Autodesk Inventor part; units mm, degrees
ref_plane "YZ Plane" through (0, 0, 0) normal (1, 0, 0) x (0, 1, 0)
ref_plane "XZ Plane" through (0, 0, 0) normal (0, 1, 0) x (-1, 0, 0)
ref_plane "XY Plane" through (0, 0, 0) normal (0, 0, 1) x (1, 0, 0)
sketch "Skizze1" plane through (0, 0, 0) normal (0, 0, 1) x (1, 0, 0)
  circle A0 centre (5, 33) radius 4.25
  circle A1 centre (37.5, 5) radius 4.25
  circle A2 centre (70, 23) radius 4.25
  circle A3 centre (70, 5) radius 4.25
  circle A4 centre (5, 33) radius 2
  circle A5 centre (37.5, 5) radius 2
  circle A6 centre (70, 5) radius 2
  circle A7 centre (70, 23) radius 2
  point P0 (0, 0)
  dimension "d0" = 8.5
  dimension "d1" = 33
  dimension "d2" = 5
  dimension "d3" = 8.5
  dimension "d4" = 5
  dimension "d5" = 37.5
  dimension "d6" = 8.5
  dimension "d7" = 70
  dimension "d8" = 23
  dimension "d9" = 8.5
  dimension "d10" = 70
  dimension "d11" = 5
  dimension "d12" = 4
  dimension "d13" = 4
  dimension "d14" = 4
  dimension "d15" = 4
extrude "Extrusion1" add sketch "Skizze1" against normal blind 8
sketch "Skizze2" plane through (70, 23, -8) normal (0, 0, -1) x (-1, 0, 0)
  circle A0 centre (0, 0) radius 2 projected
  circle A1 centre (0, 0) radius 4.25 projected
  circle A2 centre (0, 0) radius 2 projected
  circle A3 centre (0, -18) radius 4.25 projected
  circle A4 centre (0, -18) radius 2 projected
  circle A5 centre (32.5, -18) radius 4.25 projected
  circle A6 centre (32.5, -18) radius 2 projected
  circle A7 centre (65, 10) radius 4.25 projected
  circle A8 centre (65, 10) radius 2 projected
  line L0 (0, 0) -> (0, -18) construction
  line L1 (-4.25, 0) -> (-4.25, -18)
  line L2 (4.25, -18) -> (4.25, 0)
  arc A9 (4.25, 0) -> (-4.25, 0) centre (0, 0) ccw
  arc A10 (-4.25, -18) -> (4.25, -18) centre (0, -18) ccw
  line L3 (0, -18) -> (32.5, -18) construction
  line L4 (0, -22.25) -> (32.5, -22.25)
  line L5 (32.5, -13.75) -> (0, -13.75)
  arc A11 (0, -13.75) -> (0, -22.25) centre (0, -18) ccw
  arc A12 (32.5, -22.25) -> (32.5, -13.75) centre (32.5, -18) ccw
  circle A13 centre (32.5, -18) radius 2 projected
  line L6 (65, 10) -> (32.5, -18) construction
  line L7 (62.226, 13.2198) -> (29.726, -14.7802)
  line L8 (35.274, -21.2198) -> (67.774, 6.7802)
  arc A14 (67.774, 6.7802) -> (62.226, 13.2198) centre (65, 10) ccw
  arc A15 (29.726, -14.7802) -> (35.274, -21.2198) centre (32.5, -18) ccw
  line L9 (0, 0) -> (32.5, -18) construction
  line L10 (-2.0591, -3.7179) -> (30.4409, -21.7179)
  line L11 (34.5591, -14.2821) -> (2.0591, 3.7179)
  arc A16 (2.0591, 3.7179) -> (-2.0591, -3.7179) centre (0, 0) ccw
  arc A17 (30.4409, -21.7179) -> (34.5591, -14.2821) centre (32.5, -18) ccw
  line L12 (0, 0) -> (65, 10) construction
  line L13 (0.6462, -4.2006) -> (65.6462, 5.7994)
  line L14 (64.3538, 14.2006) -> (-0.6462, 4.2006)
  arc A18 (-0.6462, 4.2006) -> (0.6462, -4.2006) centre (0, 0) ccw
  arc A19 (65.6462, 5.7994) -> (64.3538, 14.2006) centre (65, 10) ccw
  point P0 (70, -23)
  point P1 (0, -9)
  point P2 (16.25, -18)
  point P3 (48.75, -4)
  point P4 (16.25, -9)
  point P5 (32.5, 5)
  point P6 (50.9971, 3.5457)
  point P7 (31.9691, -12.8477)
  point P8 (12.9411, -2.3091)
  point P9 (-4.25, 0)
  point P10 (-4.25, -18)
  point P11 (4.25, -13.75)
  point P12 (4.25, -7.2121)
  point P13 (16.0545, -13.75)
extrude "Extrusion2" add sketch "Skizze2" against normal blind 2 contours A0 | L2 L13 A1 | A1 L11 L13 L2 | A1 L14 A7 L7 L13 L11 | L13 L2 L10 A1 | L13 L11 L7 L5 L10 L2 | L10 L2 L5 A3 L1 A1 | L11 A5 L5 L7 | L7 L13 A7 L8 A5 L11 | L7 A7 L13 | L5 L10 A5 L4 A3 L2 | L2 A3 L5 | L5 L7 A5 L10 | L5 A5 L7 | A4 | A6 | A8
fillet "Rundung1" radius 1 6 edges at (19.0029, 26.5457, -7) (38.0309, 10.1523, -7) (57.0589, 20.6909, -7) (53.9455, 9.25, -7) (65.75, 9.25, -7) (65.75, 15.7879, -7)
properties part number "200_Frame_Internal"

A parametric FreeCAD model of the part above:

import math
import FreeCAD as App
import Part
import Sketcher

V = App.Vector
Q = App.Units.Quantity


def edges_at(feature, points):
    """Names of the edges that pass closest to the given points."""
    edges = feature.Shape.Edges
    near = lambda p: min(range(len(edges)), key=lambda i: edges[i].distToShape(Part.Vertex(*p))[0])
    return sorted({f"Edge{near(p) + 1}" for p in points})

doc = App.newDocument("Part")
body = doc.addObject("PartDesign::Body", "Body")
body.AllowCompound = True

# Sketch on XY plane
sketch1 = body.newObject("Sketcher::SketchObject", "Sketch")
sketch1.AttachmentSupport = (doc.getObject("XY_Plane"), [""])
sketch1.MapMode = "FlatFace"
sketch1.addGeometry([
    Part.Circle(V(5, 33, 0), V(0, 0, 1), 4.2),  # 0
    Part.Circle(V(5, 33, 0), V(0, 0, 1), 2),  # 1
    Part.Circle(V(37.5, 5, 0), V(0, 0, 1), 4.2),  # 2
    Part.Circle(V(37.5, 5, 0), V(0, 0, 1), 2),  # 3
    Part.Circle(V(70, 23, 0), V(0, 0, 1), 4.2),  # 4
    Part.Circle(V(70, 23, 0), V(0, 0, 1), 2),  # 5
    Part.Circle(V(70, 5, 0), V(0, 0, 1), 4.2),  # 6
    Part.Circle(V(70, 5, 0), V(0, 0, 1), 2),  # 7
], False)
sketch1.addConstraint([
    Sketcher.Constraint("Coincident", 1, 3, 0, 3),
    Sketcher.Constraint("Coincident", 3, 3, 2, 3),
    Sketcher.Constraint("Coincident", 5, 3, 4, 3),
    Sketcher.Constraint("Coincident", 7, 3, 6, 3),
    Sketcher.Constraint("Equal", 0, 2),
    Sketcher.Constraint("Equal", 1, 3),
    Sketcher.Constraint("Equal", 2, 4),
    Sketcher.Constraint("Equal", 3, 5),
    Sketcher.Constraint("Equal", 4, 6),
    Sketcher.Constraint("Equal", 5, 7),
    Sketcher.Constraint("Horizontal", 3, 3, 6, 3),
    Sketcher.Constraint("Vertical", 5, 3, 6, 3),
    Sketcher.Constraint("Diameter", 1, 4.0),
    Sketcher.Constraint("Diameter", 0, 8.5),
    Sketcher.Constraint("DistanceX", -1, 1, 0, 3, 5.0),
    Sketcher.Constraint("DistanceY", -1, 1, 0, 3, 33.0),
    Sketcher.Constraint("DistanceY", -1, 1, 2, 3, 5.0),
    Sketcher.Constraint("DistanceX", -1, 1, 4, 3, 70.0),
    Sketcher.Constraint("DistanceY", -1, 1, 4, 3, 23.0),
    Sketcher.Constraint("DistanceX", -1, 1, 2, 3, 37.5),
])
pad1 = body.newObject("PartDesign::Pad", "Pad")
pad1.Profile = sketch1
pad1.Length = 8
pad1.Reversed = True

# Sketch on XY plane
sketch2 = body.newObject("Sketcher::SketchObject", "Sketch001")
sketch2.AttachmentSupport = (doc.getObject("XY_Plane"), [""])
sketch2.MapMode = "FlatFace"
sketch2.AttachmentOffset = App.Placement(V(0, 0, -8), App.Rotation())
sketch2.addGeometry([
    Part.Circle(V(70, 23, 0), V(0, 0, 1), 2),  # 0
    Part.LineSegment(V(74.2, 23, 0), V(74.2, 5, 0)),  # 1
    Part.ArcOfCircle(Part.Circle(V(70, 5, 0), V(0, 0, 1), 4.2), math.radians(0), math.radians(270)),  # 2
    Part.LineSegment(V(70, 0.8, 0), V(37.5, 0.8, 0)),  # 3
    Part.ArcOfCircle(Part.Circle(V(37.5, 5, 0), V(0, 0, 1), 4.2), math.radians(-90), math.radians(229)),  # 4
    Part.LineSegment(V(34.7, 1.8, 0), V(2.2, 29.8, 0)),  # 5
    Part.ArcOfCircle(Part.Circle(V(5, 33, 0), V(0, 0, 1), 4.2), math.radians(-131), math.radians(81)),  # 6
    Part.LineSegment(V(5.6, 37.2, 0), V(70.6, 27.2, 0)),  # 7
    Part.ArcOfCircle(Part.Circle(V(70, 23, 0), V(0, 0, 1), 4.2), math.radians(81), math.radians(360)),  # 8
    Part.LineSegment(V(57.1, 20.7, 0), V(19, 26.5, 0)),  # 9
    Part.LineSegment(V(19, 26.5, 0), V(38, 10.2, 0)),  # 10
    Part.LineSegment(V(38, 10.2, 0), V(57.1, 20.7, 0)),  # 11
    Part.LineSegment(V(65.8, 15.8, 0), V(53.9, 9.2, 0)),  # 12
    Part.LineSegment(V(53.9, 9.2, 0), V(65.8, 9.2, 0)),  # 13
    Part.LineSegment(V(65.8, 9.2, 0), V(65.8, 15.8, 0)),  # 14
    Part.Circle(V(70, 5, 0), V(0, 0, 1), 2),  # 15
    Part.Circle(V(37.5, 5, 0), V(0, 0, 1), 2),  # 16
    Part.Circle(V(5, 33, 0), V(0, 0, 1), 2),  # 17
], False)
sketch2.addConstraint([
    Sketcher.Constraint("Tangent", 1, 2, 2, 1),
    Sketcher.Constraint("Tangent", 2, 2, 3, 1),
    Sketcher.Constraint("Tangent", 3, 2, 4, 1),
    Sketcher.Constraint("Tangent", 4, 2, 5, 1),
    Sketcher.Constraint("Tangent", 5, 2, 6, 1),
    Sketcher.Constraint("Tangent", 6, 2, 7, 1),
    Sketcher.Constraint("Tangent", 7, 2, 8, 1),
    Sketcher.Constraint("Tangent", 8, 2, 1, 1),
    Sketcher.Constraint("Coincident", 9, 2, 10, 1),
    Sketcher.Constraint("Coincident", 10, 2, 11, 1),
    Sketcher.Constraint("Coincident", 11, 2, 9, 1),
    Sketcher.Constraint("Coincident", 12, 2, 13, 1),
    Sketcher.Constraint("Coincident", 13, 2, 14, 1),
    Sketcher.Constraint("Coincident", 14, 2, 12, 1),
    Sketcher.Constraint("Vertical", 1),
    Sketcher.Constraint("Horizontal", 3),
    Sketcher.Constraint("Horizontal", 13),
    Sketcher.Constraint("Vertical", 14),
    Sketcher.Constraint("Coincident", 8, 3, 0, 3),
    Sketcher.Constraint("Coincident", 15, 3, 2, 3),
    Sketcher.Constraint("Coincident", 16, 3, 4, 3),
    Sketcher.Constraint("Coincident", 17, 3, 6, 3),
    Sketcher.Constraint("Equal", 2, 4),
    Sketcher.Constraint("Equal", 4, 6),
    Sketcher.Constraint("Equal", 6, 8),
    Sketcher.Constraint("Equal", 0, 15),
    Sketcher.Constraint("Equal", 15, 16),
    Sketcher.Constraint("Equal", 16, 17),
    Sketcher.Constraint("Parallel", 7, 9),
    Sketcher.Constraint("Parallel", 5, 10),
    Sketcher.Constraint("Parallel", 11, 12),
    Sketcher.Constraint("Diameter", 0, 4.0),
    Sketcher.Constraint("DistanceY", 1, 2, 1, 1, 18.0),
    Sketcher.Constraint("Radius", 2, 4.25),
    Sketcher.Constraint("DistanceX", 3, 2, 3, 1, 32.5),
    Sketcher.Constraint("DistanceX", -1, 1, 0, 3, 70.0),
    Sketcher.Constraint("DistanceY", -1, 1, 0, 3, 23.0),
    Sketcher.Constraint("DistanceX", -1, 1, 6, 3, 5.0),
    Sketcher.Constraint("DistanceY", -1, 1, 6, 3, 33.0),
    Sketcher.Constraint("Angle", 11, Q("28.9797 deg")),
    Sketcher.Constraint("DistanceX", 13, 2, 1, 2, 8.5),
    Sketcher.Constraint("DistanceY", 2, 2, 13, 2, 8.5),
    Sketcher.Constraint("Distance", 12, 13.494),
    Sketcher.Constraint("DistanceY", -1, 1, 11, 2, 20.691),
    Sketcher.Constraint("DistanceY", 9, 2, 6, 2, 10.655),
    Sketcher.Constraint("DistanceX", 4, 2, 10, 2, 3.305),
])
pad2 = body.newObject("PartDesign::Pad", "Pad001")
pad2.Profile = sketch2
pad2.Length = 2
doc.recompute()

fillet = body.newObject("PartDesign::Fillet", "Fillet")
fillet.Base = (pad2, edges_at(pad2, [
    (19.003, 26.546, -7),
    (38.031, 10.152, -7),
    (57.059, 20.691, -7),
    (53.946, 9.25, -7),
    (65.75, 9.25, -7),
    (65.75, 15.788, -7),
]))
fillet.Radius = 1

doc.recompute()
